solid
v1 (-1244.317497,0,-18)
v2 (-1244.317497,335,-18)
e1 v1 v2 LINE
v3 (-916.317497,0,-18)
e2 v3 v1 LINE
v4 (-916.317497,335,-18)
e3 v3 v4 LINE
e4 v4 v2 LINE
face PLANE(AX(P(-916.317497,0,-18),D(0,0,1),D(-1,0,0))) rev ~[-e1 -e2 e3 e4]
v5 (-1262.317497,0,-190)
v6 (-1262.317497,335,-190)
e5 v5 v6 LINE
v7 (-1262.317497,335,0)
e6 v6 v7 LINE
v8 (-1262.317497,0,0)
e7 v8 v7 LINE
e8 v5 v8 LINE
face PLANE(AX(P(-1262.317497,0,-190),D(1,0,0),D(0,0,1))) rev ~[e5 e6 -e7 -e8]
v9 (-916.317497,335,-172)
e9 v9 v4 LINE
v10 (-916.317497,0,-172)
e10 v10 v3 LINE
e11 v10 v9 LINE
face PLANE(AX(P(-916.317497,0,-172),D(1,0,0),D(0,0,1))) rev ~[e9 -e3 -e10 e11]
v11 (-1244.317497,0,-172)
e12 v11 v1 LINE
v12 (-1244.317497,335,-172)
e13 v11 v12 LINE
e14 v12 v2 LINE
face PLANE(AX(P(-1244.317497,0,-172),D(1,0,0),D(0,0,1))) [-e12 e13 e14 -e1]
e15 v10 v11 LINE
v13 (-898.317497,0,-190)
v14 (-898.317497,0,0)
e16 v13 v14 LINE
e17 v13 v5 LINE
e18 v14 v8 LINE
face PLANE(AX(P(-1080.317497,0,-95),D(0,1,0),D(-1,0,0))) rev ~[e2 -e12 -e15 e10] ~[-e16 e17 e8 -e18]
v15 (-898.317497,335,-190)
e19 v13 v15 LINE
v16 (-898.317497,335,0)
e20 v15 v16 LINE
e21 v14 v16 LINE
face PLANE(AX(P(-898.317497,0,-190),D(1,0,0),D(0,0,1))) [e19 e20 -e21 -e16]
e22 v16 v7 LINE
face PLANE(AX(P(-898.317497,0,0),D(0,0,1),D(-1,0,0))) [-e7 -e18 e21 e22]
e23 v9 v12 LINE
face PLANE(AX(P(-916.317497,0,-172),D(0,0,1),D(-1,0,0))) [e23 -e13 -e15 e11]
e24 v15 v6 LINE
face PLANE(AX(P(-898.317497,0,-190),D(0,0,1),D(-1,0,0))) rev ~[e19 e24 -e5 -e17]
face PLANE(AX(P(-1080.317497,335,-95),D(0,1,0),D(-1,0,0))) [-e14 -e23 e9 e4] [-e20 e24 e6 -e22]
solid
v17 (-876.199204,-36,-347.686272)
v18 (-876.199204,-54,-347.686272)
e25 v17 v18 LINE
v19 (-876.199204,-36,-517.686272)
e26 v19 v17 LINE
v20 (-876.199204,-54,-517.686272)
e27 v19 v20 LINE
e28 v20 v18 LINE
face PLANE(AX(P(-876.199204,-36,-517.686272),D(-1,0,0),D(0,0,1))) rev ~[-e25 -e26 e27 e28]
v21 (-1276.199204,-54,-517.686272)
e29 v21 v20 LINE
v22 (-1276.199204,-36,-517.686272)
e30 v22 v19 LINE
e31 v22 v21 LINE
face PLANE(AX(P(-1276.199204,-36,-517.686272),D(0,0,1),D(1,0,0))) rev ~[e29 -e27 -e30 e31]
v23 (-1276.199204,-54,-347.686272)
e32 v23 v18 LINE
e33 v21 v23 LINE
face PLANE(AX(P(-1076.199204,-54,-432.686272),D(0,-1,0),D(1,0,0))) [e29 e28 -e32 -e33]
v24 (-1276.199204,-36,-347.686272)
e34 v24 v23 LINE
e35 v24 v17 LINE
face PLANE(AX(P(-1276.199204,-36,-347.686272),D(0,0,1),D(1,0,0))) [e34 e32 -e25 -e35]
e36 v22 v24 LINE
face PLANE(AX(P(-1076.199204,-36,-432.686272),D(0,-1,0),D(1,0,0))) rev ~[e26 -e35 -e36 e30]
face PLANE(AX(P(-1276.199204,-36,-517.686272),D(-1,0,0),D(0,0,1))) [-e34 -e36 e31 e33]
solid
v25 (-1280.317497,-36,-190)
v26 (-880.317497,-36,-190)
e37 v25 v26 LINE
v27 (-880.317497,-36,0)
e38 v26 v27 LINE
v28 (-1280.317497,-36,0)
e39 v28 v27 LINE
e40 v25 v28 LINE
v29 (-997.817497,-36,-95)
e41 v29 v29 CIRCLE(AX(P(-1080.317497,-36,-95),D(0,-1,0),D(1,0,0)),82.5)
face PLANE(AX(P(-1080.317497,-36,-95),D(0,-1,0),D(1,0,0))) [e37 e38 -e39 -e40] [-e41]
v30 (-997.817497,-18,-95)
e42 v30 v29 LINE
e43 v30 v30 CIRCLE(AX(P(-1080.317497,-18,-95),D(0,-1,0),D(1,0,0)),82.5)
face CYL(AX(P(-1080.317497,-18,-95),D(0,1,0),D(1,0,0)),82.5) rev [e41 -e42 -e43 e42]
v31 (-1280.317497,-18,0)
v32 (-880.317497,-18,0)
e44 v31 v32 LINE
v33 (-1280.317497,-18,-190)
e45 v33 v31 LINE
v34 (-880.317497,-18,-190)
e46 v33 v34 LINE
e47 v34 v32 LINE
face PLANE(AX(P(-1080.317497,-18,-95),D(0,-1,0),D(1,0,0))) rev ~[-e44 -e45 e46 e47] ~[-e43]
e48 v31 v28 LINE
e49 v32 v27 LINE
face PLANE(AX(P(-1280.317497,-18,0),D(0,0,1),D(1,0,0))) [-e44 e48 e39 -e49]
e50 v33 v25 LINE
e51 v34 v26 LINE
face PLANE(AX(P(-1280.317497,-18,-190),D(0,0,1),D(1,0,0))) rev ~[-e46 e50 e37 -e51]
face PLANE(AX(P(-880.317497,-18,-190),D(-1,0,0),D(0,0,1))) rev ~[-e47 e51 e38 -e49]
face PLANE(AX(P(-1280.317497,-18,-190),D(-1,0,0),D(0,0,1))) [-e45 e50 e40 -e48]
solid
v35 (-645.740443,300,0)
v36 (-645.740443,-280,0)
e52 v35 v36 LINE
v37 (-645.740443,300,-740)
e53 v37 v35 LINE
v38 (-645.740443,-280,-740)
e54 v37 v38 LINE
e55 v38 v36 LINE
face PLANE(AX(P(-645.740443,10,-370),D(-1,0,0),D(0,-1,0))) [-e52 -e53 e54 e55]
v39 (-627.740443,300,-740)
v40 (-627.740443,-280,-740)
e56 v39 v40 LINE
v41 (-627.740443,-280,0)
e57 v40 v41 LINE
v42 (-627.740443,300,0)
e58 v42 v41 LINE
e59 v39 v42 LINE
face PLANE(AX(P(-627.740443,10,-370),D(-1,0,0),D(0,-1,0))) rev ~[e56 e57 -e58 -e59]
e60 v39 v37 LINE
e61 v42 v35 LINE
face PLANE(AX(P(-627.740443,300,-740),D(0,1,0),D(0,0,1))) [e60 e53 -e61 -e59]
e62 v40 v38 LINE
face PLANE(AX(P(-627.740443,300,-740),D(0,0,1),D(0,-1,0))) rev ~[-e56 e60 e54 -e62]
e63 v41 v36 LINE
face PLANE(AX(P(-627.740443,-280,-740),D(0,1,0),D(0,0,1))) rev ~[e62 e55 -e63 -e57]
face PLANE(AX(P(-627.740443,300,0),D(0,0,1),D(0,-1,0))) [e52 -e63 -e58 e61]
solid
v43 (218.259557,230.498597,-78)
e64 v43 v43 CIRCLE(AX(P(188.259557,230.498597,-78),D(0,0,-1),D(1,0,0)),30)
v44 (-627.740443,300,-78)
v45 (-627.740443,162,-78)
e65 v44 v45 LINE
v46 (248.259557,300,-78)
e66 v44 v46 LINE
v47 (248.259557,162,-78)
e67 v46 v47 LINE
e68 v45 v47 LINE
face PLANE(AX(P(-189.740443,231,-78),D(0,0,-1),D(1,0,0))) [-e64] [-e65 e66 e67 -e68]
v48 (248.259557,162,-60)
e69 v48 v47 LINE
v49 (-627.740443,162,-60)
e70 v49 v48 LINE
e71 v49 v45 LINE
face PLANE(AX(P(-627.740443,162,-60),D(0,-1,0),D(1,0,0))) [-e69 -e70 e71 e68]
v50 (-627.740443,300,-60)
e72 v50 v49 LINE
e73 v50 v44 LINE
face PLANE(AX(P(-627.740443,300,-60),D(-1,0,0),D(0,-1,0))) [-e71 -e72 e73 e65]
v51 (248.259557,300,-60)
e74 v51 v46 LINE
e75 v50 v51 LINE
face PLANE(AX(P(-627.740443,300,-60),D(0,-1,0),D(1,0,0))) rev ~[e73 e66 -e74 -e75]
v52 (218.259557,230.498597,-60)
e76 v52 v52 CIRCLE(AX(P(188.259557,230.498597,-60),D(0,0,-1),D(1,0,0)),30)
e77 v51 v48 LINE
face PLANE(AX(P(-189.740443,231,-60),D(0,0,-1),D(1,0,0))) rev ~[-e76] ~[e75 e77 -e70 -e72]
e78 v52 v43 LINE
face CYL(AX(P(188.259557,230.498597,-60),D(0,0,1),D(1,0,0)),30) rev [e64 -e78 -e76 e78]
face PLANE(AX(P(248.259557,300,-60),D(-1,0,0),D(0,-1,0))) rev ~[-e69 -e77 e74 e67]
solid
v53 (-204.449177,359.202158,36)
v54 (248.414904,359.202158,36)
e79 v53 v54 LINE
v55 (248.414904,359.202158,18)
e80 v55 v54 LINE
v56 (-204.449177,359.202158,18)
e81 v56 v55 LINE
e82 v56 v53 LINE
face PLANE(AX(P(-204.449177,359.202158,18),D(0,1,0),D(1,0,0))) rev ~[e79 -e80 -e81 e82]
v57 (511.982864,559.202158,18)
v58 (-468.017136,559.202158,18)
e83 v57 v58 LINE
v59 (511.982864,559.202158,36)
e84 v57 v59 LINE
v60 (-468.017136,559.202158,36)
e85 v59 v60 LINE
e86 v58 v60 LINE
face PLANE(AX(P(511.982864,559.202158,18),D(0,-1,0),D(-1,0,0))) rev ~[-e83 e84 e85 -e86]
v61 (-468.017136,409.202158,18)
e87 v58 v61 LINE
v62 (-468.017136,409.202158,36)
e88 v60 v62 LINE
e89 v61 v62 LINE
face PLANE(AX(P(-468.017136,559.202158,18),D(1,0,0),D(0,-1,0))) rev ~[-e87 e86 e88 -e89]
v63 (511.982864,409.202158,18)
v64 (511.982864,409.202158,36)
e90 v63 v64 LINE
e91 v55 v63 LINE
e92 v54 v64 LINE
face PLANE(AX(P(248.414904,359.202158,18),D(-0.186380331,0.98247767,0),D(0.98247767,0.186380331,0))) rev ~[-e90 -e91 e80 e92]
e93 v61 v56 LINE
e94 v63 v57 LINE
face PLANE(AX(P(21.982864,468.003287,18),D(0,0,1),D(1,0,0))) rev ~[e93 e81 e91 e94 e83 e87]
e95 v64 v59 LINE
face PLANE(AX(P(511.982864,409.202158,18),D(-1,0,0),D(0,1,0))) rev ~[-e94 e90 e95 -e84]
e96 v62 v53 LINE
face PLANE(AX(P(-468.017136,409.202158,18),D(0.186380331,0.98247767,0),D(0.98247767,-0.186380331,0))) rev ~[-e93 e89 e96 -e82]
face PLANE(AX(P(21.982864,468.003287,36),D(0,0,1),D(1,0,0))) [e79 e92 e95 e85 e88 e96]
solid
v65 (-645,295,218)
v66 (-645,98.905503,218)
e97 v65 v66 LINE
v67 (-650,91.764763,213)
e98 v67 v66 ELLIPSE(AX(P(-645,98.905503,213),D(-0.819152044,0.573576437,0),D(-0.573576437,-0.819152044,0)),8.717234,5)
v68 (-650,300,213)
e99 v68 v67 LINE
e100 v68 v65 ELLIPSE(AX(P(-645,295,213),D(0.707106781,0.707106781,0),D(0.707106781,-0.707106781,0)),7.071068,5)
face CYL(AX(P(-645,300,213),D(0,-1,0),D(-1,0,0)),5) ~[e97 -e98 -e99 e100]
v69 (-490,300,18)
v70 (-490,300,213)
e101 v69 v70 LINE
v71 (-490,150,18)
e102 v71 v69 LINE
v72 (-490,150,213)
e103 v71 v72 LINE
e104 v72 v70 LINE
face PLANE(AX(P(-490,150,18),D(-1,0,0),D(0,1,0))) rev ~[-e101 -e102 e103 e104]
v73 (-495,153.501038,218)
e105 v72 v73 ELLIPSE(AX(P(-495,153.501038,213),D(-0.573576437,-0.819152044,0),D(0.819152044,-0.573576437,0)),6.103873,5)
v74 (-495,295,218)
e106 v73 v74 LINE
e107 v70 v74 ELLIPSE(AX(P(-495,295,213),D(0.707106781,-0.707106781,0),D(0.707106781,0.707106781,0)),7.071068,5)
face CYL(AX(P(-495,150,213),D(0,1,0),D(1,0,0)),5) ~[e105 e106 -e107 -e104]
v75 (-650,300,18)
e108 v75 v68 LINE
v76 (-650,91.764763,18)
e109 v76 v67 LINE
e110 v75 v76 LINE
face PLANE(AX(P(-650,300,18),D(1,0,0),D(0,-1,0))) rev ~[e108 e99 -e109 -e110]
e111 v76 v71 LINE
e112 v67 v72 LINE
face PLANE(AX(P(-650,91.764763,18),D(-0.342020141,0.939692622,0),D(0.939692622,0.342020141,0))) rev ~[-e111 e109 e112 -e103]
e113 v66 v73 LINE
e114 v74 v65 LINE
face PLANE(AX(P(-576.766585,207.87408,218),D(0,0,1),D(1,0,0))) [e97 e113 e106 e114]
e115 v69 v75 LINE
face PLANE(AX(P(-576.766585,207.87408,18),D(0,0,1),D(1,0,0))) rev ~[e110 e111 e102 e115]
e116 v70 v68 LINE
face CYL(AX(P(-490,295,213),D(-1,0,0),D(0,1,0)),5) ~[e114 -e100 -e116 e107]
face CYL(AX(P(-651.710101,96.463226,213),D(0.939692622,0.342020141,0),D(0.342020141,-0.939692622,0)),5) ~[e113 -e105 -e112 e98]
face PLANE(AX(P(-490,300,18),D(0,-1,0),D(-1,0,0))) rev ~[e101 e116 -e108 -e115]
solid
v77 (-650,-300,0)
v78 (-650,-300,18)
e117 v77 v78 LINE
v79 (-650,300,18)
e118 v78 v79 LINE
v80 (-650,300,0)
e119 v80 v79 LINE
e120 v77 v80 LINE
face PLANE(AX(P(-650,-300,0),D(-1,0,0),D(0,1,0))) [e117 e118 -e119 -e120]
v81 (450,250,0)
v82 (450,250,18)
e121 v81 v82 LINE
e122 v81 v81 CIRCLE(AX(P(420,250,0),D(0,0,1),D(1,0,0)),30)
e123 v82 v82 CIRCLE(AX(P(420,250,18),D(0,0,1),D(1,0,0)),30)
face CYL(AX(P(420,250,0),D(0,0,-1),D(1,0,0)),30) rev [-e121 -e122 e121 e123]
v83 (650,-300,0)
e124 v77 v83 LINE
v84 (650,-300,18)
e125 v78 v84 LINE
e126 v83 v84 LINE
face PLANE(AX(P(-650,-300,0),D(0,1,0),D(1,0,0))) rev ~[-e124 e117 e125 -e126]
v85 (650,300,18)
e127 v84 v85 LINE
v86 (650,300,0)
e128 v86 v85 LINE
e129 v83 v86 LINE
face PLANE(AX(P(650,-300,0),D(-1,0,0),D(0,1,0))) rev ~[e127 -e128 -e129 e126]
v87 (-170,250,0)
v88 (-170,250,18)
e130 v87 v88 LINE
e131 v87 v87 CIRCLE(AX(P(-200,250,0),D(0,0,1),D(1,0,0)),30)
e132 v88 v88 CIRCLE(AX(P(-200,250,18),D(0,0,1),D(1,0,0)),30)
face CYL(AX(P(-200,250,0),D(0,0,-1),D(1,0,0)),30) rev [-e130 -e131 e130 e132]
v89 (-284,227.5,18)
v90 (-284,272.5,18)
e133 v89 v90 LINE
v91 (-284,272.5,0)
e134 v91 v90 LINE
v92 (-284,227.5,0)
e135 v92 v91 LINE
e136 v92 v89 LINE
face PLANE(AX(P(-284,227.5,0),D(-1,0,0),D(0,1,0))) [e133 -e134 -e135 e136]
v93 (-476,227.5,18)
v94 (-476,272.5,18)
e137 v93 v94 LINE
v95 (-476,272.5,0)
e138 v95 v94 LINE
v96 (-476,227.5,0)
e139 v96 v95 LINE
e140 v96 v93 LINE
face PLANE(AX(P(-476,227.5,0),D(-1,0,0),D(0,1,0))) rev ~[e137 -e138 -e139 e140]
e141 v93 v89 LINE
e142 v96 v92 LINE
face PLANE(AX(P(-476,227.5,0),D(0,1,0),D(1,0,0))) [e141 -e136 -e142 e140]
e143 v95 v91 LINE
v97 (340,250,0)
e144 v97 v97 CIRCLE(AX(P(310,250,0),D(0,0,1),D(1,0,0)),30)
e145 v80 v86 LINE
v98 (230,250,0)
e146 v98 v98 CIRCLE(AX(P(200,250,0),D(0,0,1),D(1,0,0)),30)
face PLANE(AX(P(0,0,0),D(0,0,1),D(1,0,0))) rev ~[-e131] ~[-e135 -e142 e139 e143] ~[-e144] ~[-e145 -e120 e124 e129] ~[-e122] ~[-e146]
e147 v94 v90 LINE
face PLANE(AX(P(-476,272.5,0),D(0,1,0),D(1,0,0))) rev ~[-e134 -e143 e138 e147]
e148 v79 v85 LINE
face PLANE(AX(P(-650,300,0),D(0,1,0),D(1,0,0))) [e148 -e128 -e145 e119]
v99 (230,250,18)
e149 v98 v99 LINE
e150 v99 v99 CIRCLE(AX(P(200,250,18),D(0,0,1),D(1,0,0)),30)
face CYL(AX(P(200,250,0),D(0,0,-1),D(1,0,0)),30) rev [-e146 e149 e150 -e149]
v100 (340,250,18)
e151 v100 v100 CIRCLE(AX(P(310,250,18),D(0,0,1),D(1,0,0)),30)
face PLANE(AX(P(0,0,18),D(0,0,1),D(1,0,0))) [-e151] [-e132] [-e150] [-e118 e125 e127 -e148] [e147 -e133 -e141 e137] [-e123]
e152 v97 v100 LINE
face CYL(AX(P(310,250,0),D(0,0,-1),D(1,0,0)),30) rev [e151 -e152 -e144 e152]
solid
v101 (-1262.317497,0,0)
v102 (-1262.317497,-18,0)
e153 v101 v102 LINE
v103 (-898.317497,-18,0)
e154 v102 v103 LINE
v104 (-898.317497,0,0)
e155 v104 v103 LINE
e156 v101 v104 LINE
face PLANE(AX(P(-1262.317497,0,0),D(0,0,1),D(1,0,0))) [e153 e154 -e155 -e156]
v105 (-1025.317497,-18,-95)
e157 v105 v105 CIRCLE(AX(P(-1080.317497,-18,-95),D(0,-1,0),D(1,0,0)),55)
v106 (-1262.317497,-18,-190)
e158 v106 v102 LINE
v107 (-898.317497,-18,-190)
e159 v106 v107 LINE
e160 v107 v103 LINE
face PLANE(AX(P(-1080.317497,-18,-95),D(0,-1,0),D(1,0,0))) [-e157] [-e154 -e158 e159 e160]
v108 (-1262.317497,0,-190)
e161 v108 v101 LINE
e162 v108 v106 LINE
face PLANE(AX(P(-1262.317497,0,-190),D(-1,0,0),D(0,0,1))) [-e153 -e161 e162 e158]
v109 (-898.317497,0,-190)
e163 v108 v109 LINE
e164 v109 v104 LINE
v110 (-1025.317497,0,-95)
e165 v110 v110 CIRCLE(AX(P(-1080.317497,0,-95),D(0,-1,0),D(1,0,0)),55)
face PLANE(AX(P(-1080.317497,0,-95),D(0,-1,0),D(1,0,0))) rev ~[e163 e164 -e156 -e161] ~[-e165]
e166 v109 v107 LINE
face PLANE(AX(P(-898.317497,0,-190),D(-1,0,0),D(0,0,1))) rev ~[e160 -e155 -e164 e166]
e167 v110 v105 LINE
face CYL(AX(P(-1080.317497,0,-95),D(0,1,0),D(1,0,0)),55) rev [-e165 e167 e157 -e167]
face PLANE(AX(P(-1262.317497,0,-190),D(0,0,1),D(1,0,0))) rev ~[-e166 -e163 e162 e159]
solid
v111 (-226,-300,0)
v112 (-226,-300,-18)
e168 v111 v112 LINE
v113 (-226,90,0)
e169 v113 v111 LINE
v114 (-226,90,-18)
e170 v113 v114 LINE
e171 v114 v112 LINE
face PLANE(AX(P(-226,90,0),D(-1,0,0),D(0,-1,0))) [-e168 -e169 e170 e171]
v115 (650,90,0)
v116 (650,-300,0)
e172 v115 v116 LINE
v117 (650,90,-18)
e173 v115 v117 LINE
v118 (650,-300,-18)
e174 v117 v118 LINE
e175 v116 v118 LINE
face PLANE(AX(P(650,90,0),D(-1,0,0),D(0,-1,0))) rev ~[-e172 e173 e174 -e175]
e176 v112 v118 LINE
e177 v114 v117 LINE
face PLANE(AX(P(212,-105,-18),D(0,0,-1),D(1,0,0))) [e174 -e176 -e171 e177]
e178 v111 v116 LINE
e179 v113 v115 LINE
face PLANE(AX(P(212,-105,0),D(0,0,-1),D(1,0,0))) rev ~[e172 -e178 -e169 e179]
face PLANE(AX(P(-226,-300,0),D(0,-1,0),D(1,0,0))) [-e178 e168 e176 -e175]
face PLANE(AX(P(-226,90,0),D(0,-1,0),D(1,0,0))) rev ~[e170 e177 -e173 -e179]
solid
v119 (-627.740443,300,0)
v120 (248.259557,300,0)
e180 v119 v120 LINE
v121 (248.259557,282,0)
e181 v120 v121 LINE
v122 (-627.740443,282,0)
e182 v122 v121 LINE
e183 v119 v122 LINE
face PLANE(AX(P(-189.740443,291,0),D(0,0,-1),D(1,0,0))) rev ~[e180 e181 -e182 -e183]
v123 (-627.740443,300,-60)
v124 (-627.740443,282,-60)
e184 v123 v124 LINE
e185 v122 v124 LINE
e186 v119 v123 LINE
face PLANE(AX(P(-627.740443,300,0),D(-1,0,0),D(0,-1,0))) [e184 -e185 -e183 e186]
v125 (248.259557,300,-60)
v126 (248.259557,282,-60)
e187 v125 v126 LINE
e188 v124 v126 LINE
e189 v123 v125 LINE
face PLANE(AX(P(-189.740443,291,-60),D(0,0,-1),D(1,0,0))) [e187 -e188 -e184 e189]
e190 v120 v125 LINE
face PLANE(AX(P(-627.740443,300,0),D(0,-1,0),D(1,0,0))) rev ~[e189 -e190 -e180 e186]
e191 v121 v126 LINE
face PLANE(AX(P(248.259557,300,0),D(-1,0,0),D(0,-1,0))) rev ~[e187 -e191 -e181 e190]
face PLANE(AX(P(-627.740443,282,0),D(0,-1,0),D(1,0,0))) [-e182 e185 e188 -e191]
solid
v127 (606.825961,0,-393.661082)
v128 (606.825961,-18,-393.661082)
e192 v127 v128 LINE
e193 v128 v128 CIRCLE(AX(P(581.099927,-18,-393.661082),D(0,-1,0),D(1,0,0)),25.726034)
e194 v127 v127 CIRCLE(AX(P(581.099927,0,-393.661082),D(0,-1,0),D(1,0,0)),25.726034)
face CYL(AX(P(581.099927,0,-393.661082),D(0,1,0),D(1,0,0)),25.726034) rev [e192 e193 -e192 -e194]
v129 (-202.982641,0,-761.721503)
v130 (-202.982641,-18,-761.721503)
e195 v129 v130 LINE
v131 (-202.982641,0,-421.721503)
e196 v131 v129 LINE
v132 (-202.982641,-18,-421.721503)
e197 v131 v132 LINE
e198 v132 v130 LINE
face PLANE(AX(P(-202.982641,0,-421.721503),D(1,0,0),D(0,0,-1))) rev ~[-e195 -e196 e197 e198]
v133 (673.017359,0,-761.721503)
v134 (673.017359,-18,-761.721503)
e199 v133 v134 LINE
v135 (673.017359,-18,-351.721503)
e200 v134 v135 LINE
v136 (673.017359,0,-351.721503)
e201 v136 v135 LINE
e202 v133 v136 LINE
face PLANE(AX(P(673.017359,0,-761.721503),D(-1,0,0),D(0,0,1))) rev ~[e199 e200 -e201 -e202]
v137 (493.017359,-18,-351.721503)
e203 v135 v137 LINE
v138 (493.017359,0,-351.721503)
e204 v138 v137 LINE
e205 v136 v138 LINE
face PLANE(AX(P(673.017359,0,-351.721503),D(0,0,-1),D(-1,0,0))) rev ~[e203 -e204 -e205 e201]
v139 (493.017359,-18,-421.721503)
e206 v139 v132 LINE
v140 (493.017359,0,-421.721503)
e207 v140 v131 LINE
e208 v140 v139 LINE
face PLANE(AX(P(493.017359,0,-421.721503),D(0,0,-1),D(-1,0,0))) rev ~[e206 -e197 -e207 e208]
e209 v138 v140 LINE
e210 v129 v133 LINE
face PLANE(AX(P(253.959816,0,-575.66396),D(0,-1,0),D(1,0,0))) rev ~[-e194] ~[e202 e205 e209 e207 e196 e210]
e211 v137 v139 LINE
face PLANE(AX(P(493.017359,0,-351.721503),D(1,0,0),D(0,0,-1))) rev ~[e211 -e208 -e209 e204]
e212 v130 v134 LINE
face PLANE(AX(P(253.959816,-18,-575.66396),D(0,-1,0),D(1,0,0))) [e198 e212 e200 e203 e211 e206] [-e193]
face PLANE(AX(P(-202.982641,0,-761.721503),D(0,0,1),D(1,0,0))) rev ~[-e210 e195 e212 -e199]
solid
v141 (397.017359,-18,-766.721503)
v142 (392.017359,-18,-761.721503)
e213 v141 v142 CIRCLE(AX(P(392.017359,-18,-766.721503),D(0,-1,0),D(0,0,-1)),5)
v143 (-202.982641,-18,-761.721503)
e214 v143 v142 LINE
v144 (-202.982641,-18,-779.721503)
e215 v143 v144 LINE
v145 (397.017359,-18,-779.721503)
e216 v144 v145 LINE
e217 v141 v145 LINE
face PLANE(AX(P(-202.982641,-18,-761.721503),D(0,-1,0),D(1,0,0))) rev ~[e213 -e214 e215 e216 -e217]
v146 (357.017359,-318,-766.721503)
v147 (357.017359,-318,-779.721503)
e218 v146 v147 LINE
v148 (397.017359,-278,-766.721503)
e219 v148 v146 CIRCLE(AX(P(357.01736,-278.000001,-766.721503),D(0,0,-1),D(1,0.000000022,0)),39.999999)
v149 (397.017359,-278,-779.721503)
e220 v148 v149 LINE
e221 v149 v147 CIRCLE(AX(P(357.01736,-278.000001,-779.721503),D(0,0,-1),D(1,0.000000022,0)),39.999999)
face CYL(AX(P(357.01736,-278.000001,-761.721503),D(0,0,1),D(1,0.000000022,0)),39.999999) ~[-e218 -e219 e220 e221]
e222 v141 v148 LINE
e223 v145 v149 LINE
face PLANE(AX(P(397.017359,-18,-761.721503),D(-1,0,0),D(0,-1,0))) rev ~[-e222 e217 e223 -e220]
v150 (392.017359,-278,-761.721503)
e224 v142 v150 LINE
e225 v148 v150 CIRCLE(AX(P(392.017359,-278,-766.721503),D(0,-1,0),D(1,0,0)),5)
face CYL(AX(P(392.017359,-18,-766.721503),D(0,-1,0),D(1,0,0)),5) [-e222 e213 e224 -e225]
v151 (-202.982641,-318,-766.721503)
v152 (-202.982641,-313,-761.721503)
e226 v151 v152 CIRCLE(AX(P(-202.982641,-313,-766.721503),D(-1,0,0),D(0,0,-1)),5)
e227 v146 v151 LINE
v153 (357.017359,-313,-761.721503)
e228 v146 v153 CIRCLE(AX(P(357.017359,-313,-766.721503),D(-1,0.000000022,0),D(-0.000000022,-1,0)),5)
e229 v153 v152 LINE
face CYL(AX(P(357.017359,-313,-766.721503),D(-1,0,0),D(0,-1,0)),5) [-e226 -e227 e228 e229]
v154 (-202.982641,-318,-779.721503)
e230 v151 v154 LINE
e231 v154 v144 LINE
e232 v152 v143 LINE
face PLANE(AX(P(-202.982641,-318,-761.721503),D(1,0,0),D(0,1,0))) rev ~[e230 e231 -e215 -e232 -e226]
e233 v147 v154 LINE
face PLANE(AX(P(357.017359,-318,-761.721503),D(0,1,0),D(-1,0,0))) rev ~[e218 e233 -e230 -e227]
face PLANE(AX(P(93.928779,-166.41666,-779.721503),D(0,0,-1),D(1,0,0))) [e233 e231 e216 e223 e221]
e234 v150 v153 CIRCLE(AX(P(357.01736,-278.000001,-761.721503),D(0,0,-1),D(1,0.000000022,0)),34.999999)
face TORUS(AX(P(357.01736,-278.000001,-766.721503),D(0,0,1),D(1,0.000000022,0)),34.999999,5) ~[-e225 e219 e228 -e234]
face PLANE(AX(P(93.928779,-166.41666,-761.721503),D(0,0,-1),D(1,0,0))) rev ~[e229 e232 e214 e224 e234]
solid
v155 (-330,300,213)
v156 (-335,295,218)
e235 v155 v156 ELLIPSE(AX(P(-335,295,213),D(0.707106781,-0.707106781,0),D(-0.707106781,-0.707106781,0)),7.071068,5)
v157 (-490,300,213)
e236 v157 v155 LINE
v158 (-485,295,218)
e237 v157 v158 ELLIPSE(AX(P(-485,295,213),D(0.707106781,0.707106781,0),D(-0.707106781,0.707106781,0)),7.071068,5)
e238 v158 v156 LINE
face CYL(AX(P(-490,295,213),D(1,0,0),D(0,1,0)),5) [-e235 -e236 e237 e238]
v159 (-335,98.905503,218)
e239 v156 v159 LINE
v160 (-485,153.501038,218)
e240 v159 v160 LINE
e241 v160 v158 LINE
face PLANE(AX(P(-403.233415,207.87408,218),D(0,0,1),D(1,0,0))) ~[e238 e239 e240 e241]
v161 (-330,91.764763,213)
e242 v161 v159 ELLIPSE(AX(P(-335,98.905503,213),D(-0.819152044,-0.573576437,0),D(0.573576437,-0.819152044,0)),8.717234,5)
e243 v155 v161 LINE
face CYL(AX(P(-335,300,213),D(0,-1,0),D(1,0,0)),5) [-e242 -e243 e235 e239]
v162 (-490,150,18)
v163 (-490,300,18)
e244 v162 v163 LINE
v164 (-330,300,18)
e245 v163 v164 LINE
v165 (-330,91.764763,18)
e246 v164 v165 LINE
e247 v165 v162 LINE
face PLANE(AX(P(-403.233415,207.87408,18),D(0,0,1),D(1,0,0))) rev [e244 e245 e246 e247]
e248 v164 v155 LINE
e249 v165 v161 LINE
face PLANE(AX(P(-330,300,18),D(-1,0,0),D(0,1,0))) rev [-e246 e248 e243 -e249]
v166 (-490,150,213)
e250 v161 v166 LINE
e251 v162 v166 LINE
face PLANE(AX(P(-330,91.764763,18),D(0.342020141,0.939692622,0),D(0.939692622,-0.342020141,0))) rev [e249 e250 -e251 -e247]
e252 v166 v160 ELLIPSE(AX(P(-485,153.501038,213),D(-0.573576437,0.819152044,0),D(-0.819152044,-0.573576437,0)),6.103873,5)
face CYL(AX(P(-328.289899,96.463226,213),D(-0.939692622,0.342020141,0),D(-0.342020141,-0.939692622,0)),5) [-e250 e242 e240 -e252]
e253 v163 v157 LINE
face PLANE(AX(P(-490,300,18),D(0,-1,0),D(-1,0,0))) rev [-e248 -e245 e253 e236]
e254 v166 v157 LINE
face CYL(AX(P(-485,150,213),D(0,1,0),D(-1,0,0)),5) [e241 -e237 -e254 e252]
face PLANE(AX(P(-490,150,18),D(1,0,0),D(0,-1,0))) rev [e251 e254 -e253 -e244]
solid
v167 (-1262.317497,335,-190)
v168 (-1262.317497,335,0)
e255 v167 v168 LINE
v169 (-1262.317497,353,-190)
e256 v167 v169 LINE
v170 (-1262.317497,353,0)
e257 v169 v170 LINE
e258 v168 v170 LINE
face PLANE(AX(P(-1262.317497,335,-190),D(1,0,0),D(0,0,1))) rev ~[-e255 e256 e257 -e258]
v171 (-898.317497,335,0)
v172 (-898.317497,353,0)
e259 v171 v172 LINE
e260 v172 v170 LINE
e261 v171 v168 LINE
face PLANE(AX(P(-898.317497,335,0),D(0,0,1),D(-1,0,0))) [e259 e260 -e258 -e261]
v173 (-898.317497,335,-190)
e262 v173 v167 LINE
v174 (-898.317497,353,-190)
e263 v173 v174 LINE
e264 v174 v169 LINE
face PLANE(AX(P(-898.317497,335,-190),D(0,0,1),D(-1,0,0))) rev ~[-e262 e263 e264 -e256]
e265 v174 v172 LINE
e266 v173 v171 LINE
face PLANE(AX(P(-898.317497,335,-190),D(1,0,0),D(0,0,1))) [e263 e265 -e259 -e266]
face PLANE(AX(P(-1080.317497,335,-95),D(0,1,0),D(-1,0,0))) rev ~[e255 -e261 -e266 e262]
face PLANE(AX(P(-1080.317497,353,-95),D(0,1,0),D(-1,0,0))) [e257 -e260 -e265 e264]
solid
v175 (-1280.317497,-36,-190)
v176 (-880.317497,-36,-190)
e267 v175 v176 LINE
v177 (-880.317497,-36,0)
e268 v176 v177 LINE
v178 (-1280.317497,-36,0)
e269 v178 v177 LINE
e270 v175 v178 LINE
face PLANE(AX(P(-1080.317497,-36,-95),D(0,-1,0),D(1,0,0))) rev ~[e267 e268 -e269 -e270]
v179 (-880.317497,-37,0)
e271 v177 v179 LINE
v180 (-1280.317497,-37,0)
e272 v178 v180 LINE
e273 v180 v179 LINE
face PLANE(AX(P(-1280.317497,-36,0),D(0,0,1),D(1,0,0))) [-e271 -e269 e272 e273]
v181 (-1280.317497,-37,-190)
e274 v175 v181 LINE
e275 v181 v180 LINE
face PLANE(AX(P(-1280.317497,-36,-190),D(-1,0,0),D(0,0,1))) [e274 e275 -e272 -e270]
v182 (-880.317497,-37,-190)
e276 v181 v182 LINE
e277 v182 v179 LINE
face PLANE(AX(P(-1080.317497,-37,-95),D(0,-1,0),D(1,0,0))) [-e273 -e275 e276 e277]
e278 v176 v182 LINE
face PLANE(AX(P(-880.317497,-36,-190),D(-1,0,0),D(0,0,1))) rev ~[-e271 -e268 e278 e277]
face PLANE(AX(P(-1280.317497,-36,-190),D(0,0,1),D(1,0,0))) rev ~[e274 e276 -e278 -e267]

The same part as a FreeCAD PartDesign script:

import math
import FreeCAD as App
import Part
import Sketcher
Q = App.Units.Quantity


def edges_at(feature, points):
    """Names of the edges that pass closest to the given points."""
    edges = feature.Shape.Edges
    near = lambda p: min(range(len(edges)), key=lambda i: edges[i].distToShape(Part.Vertex(*p))[0])
    return sorted({f"Edge{near(p) + 1}" for p in points})


def add_polygon(sketch, points):
    """Adds a closed chain of lines whose ends are joined by coincident constraints."""
    first, n = sketch.GeometryCount, len(points)
    for a, b in zip(points, points[1:] + points[:1]):
        sketch.addGeometry(Part.LineSegment(App.Vector(*a, 0), App.Vector(*b, 0)), False)
    for i in range(n):
        sketch.addConstraint(Sketcher.Constraint("Coincident", first + i, 2, first + (i + 1) % n, 1))

doc = App.newDocument("Part")
params = doc.addObject("Spreadsheet::Sheet", "Params")
for row, (alias, value) in enumerate([
    ("sketch1_diameter", "60 mm"),
    ("sketch1_width", "1300 mm"),
    ("sketch1_width2", "192 mm"),
    ("sketch1_height", "600 mm"),
    ("sketch1_height2", "45 mm"),
    ("pad1_length", "18 mm"),
    ("sketch2_width", "876 mm"),
    ("sketch2_height", "18 mm"),
    ("pad2_length", "60 mm"),
    ("sketch3_diameter", "60 mm"),
    ("sketch3_width", "876 mm"),
    ("sketch3_height", "138 mm"),
    ("pad3_length", "18 mm"),
    ("sketch4_width", "580 mm"),
    ("sketch4_height", "740 mm"),
    ("pad4_length", "18 mm"),
    ("sketch5_width", "160 mm"),
    ("sketch5_height", "150 mm"),
    ("pad5_length", "200 mm"),
    ("fillet_radius", "5 mm"),
    ("sketch6_diameter", "110 mm"),
    ("sketch6_width", "364 mm"),
    ("sketch6_height", "190 mm"),
    ("pad6_length", "18 mm"),
    ("sketch7_width", "364 mm"),
    ("sketch7_width2", "328 mm"),
    ("sketch7_height", "190 mm"),
    ("sketch7_height2", "154 mm"),
    ("pad7_length", "335 mm"),
    ("sketch8_diameter", "165 mm"),
    ("sketch8_width", "400 mm"),
    ("sketch8_height", "190 mm"),
    ("pad8_length", "18 mm"),
    ("sketch9_width", "364 mm"),
    ("sketch9_height", "190 mm"),
    ("pad9_length", "18 mm"),
    ("sketch10_width", "876 mm"),
    ("sketch10_height", "390 mm"),
    ("pad10_length", "18 mm"),
    ("sketch11_width", "876 mm"),
    ("sketch11_width2", "180 mm"),
    ("sketch11_height", "410 mm"),
    ("sketch11_height2", "70 mm"),
    ("pad11_length", "18 mm"),
    ("sketch12_radius", "39.999999 mm"),
    ("sketch12_width", "600 mm"),
    ("sketch12_height", "300 mm"),
    ("pad12_length", "18 mm"),
    ("fillet2_radius", "5 mm"),
    ("sketch13_width", "400 mm"),
    ("sketch13_height", "170 mm"),
    ("pad13_length", "18 mm"),
    ("sketch14_width", "400 mm"),
    ("sketch14_height", "190 mm"),
    ("pad14_length", "1 mm"),
    ("sketch15_width", "980 mm"),
    ("sketch15_height", "150 mm"),
    ("pad15_length", "18 mm"),
], start=1):
    params.set(f"A{row}", alias)
    params.set(f"B{row}", "=" + value)
    params.setAlias(f"B{row}", alias)

body = doc.addObject("PartDesign::Body", "Body")

# Sketch on XY plane
sketch1 = doc.addObject("Sketcher::SketchObject", "Sketch")
body.addObject(sketch1)
sketch1.AttachmentSupport = (doc.XY_Plane, [""])
sketch1.MapMode = "FlatFace"
add_polygon(sketch1, [(-650, 300), (-650, -300), (650, -300), (650, 300)])  # lines 0-3
add_polygon(sketch1, [(-284, 228), (-476, 228), (-476, 272), (-284, 272)])  # lines 4-7
sketch1.addGeometry(Part.Circle(App.Vector(-200, 250, 0), App.Vector(0, 0, 1), 30), False)  # 8
sketch1.addGeometry(Part.Circle(App.Vector(200, 250, 0), App.Vector(0, 0, 1), 30), False)  # 9
sketch1.addGeometry(Part.Circle(App.Vector(310, 250, 0), App.Vector(0, 0, 1), 30), False)  # 10
sketch1.addGeometry(Part.Circle(App.Vector(420, 250, 0), App.Vector(0, 0, 1), 30), False)  # 11
sketch1.addConstraint([
    Sketcher.Constraint("Vertical", 0),
    Sketcher.Constraint("Horizontal", 1),
    Sketcher.Constraint("Vertical", 2),
    Sketcher.Constraint("Horizontal", 3),
    Sketcher.Constraint("Horizontal", 4),
    Sketcher.Constraint("Vertical", 5),
    Sketcher.Constraint("Horizontal", 6),
    Sketcher.Constraint("Vertical", 7),
    Sketcher.Constraint("Equal", 8, 9),
    Sketcher.Constraint("Equal", 9, 10),
    Sketcher.Constraint("Equal", 10, 11),
    Sketcher.Constraint("Symmetric", 0, 2, 2, 2, -1, 1),
    Sketcher.Constraint("Symmetric", 8, 3, 9, 3, -2),
    Sketcher.Constraint("Horizontal", 9, 3, 10, 3),
    Sketcher.Constraint("Horizontal", 10, 3, 11, 3),
    Sketcher.Constraint("Diameter", 8, Q("60 mm")),
    Sketcher.Constraint("DistanceX", 1, 1, 1, 2, Q("1300 mm")),
    Sketcher.Constraint("DistanceX", 4, 2, 4, 1, Q("192 mm")),
    Sketcher.Constraint("DistanceY", 0, 2, 0, 1, Q("600 mm")),
    Sketcher.Constraint("DistanceY", 5, 1, 5, 2, Q("45 mm")),
    Sketcher.Constraint("DistanceX", 8, 3, -1, 1, Q("200 mm")),
    Sketcher.Constraint("DistanceY", -1, 1, 8, 3, Q("250 mm")),
    Sketcher.Constraint("DistanceX", -1, 1, 10, 3, Q("310 mm")),
    Sketcher.Constraint("DistanceX", -1, 1, 11, 3, Q("420 mm")),
    Sketcher.Constraint("DistanceX", 4, 2, -1, 1, Q("476 mm")),
    Sketcher.Constraint("DistanceY", -1, 1, 4, 2, Q("227.5 mm")),
])
sketch1.setExpression("Constraints[23]", "Params.sketch1_diameter")
sketch1.setExpression("Constraints[24]", "Params.sketch1_width")
sketch1.setExpression("Constraints[25]", "Params.sketch1_width2")
sketch1.setExpression("Constraints[26]", "Params.sketch1_height")
sketch1.setExpression("Constraints[27]", "Params.sketch1_height2")
pad1 = doc.addObject("PartDesign::Pad", "Pad")
body.addObject(pad1)
pad1.Profile = sketch1
pad1.setExpression("Length", "Params.pad1_length")
body2 = doc.addObject("PartDesign::Body", "Body001")

# Sketch on XY plane
sketch2 = doc.addObject("Sketcher::SketchObject", "Sketch001")
body2.addObject(sketch2)
sketch2.AttachmentSupport = (doc.getObject("XY_Plane001"), [""])
sketch2.MapMode = "FlatFace"
add_polygon(sketch2, [(-628, 282), (-628, 300), (248, 300), (248, 282)])  # lines 0-3
sketch2.addConstraint([
    Sketcher.Constraint("Vertical", 0),
    Sketcher.Constraint("Horizontal", 1),
    Sketcher.Constraint("Vertical", 2),
    Sketcher.Constraint("Horizontal", 3),
    Sketcher.Constraint("DistanceX", 1, 1, 1, 2, Q("876 mm")),
    Sketcher.Constraint("DistanceY", 0, 1, 0, 2, Q("18 mm")),
    Sketcher.Constraint("DistanceY", -1, 1, 0, 2, Q("300 mm")),
    Sketcher.Constraint("DistanceX", 0, 2, -1, 1, Q("627.740443 mm")),
])
sketch2.setExpression("Constraints[8]", "Params.sketch2_width")
sketch2.setExpression("Constraints[9]", "Params.sketch2_height")
pad2 = doc.addObject("PartDesign::Pad", "Pad001")
body2.addObject(pad2)
pad2.Profile = sketch2
pad2.setExpression("Length", "Params.pad2_length")
pad2.Reversed = True
body3 = doc.addObject("PartDesign::Body", "Body002")

# Sketch on XY plane
sketch3 = doc.addObject("Sketcher::SketchObject", "Sketch002")
body3.addObject(sketch3)
sketch3.AttachmentSupport = (doc.getObject("XY_Plane002"), [""])
sketch3.MapMode = "FlatFace"
sketch3.AttachmentOffset = App.Placement(App.Vector(0, 0, -60), App.Rotation())
add_polygon(sketch3, [(-628, 162), (-628, 300), (248, 300), (248, 162)])  # lines 0-3
sketch3.addGeometry(Part.Circle(App.Vector(188, 230, 0), App.Vector(0, 0, 1), 30), False)  # 4
sketch3.addConstraint([
    Sketcher.Constraint("Vertical", 0),
    Sketcher.Constraint("Horizontal", 1),
    Sketcher.Constraint("Vertical", 2),
    Sketcher.Constraint("Horizontal", 3),
    Sketcher.Constraint("Diameter", 4, Q("60 mm")),
    Sketcher.Constraint("DistanceX", 1, 1, 1, 2, Q("876 mm")),
    Sketcher.Constraint("DistanceY", 0, 1, 0, 2, Q("138 mm")),
    Sketcher.Constraint("DistanceY", -1, 1, 0, 2, Q("300 mm")),
    Sketcher.Constraint("DistanceX", 0, 2, 4, 3, Q("816 mm")),
    Sketcher.Constraint("DistanceX", -1, 1, 4, 3, Q("188.259557 mm")),
    Sketcher.Constraint("DistanceY", -1, 1, 4, 3, Q("230.498597 mm")),
])
sketch3.setExpression("Constraints[8]", "Params.sketch3_diameter")
sketch3.setExpression("Constraints[9]", "Params.sketch3_width")
sketch3.setExpression("Constraints[10]", "Params.sketch3_height")
pad3 = doc.addObject("PartDesign::Pad", "Pad002")
body3.addObject(pad3)
pad3.Profile = sketch3
pad3.setExpression("Length", "Params.pad3_length")
pad3.Reversed = True
body4 = doc.addObject("PartDesign::Body", "Body003")

# Sketch on YZ plane
sketch4 = doc.addObject("Sketcher::SketchObject", "Sketch003")
body4.addObject(sketch4)
sketch4.AttachmentSupport = (doc.getObject("YZ_Plane003"), [""])
sketch4.MapMode = "FlatFace"
sketch4.AttachmentOffset = App.Placement(App.Vector(0, 0, -627.740443), App.Rotation())
add_polygon(sketch4, [(300, 0), (300, -740), (-280, -740), (-280, 0)])  # lines 0-3
sketch4.addConstraint([
    Sketcher.Constraint("Vertical", 0),
    Sketcher.Constraint("Horizontal", 1),
    Sketcher.Constraint("Vertical", 2),
    Sketcher.Constraint("Horizontal", 3),
    Sketcher.Constraint("PointOnObject", 2, 2, -1),
    Sketcher.Constraint("DistanceX", 1, 2, 1, 1, Q("580 mm")),
    Sketcher.Constraint("DistanceY", 0, 2, 0, 1, Q("740 mm")),
    Sketcher.Constraint("DistanceX", -1, 1, 0, 2, Q("300 mm")),
])
sketch4.setExpression("Constraints[9]", "Params.sketch4_width")
sketch4.setExpression("Constraints[10]", "Params.sketch4_height")
pad4 = doc.addObject("PartDesign::Pad", "Pad003")
body4.addObject(pad4)
pad4.Profile = sketch4
pad4.setExpression("Length", "Params.pad4_length")
pad4.Reversed = True
body5 = doc.addObject("PartDesign::Body", "Body004")

# Sketch on XY plane
sketch5 = doc.addObject("Sketcher::SketchObject", "Sketch004")
body5.addObject(sketch5)
sketch5.AttachmentSupport = (doc.getObject("XY_Plane004"), [""])
sketch5.MapMode = "FlatFace"
sketch5.AttachmentOffset = App.Placement(App.Vector(0, 0, 18), App.Rotation())
add_polygon(sketch5, [(-490, 300), (-650, 300), (-650, 92), (-490, 150)])  # lines 0-3
sketch5.addConstraint([
    Sketcher.Constraint("Horizontal", 0),
    Sketcher.Constraint("Vertical", 1),
    Sketcher.Constraint("Vertical", 3),
    Sketcher.Constraint("DistanceX", 0, 2, 0, 1, Q("160 mm")),
    Sketcher.Constraint("DistanceY", 3, 1, 3, 2, Q("150 mm")),
    Sketcher.Constraint("Angle", 2, Q("20 deg")),
    Sketcher.Constraint("DistanceX", 0, 2, -1, 1, Q("650 mm")),
    Sketcher.Constraint("DistanceY", -1, 1, 0, 2, Q("300 mm")),
])
sketch5.setExpression("Constraints[7]", "Params.sketch5_width")
sketch5.setExpression("Constraints[8]", "Params.sketch5_height")
pad5 = doc.addObject("PartDesign::Pad", "Pad004")
body5.addObject(pad5)
pad5.Profile = sketch5
pad5.setExpression("Length", "Params.pad5_length")
doc.recompute()

fillet = doc.addObject("PartDesign::Fillet", "Fillet")
body5.addObject(fillet)
fillet.Base = (pad5, edges_at(pad5, [
    (-650, 195.882, 218),
    (-570, 120.882, 218),
    (-490, 225, 218),
    (-570, 300, 218),
]))
fillet.setExpression("Radius", "Params.fillet_radius")
body6 = doc.addObject("PartDesign::Body", "Body005")

# Sketch on XZ plane
sketch6 = doc.addObject("Sketcher::SketchObject", "Sketch005")
body6.addObject(sketch6)
sketch6.AttachmentSupport = (doc.getObject("XZ_Plane005"), [""])
sketch6.MapMode = "FlatFace"
add_polygon(sketch6, [(-1262, 0), (-1262, -190), (-898, -190), (-898, 0)])  # lines 0-3
sketch6.addGeometry(Part.Circle(App.Vector(-1080, -95, 0), App.Vector(0, 0, 1), 55), False)  # 4
sketch6.addConstraint([
    Sketcher.Constraint("Vertical", 0),
    Sketcher.Constraint("Horizontal", 1),
    Sketcher.Constraint("Vertical", 2),
    Sketcher.Constraint("Horizontal", 3),
    Sketcher.Constraint("PointOnObject", 2, 2, -1),
    Sketcher.Constraint("Diameter", 4, Q("110 mm")),
    Sketcher.Constraint("DistanceX", 1, 1, 1, 2, Q("364 mm")),
    Sketcher.Constraint("DistanceY", 0, 2, 0, 1, Q("190 mm")),
    Sketcher.Constraint("DistanceY", 4, 3, -1, 1, Q("95 mm")),
    Sketcher.Constraint("DistanceX", 0, 2, 4, 3, Q("182 mm")),
    Sketcher.Constraint("DistanceX", 4, 3, -1, 1, Q("1080.317497 mm")),
])
sketch6.setExpression("Constraints[9]", "Params.sketch6_diameter")
sketch6.setExpression("Constraints[10]", "Params.sketch6_width")
sketch6.setExpression("Constraints[11]", "Params.sketch6_height")
pad6 = doc.addObject("PartDesign::Pad", "Pad005")
body6.addObject(pad6)
pad6.Profile = sketch6
pad6.setExpression("Length", "Params.pad6_length")
body7 = doc.addObject("PartDesign::Body", "Body006")

# Sketch on XZ plane
sketch7 = doc.addObject("Sketcher::SketchObject", "Sketch006")
body7.addObject(sketch7)
sketch7.AttachmentSupport = (doc.getObject("XZ_Plane006"), [""])
sketch7.MapMode = "FlatFace"
add_polygon(sketch7, [(-898, 0), (-898, -190), (-1262, -190), (-1262, 0)])  # lines 0-3
add_polygon(sketch7, [(-1244, -172), (-916, -172), (-916, -18), (-1244, -18)])  # lines 4-7
sketch7.addConstraint([
    Sketcher.Constraint("Vertical", 0),
    Sketcher.Constraint("Horizontal", 1),
    Sketcher.Constraint("Vertical", 2),
    Sketcher.Constraint("Horizontal", 3),
    Sketcher.Constraint("Horizontal", 4),
    Sketcher.Constraint("Vertical", 5),
    Sketcher.Constraint("Horizontal", 6),
    Sketcher.Constraint("Vertical", 7),
    Sketcher.Constraint("PointOnObject", 2, 2, -1),
    Sketcher.Constraint("DistanceX", 1, 2, 1, 1, Q("364 mm")),
    Sketcher.Constraint("DistanceX", 4, 1, 4, 2, Q("328 mm")),
    Sketcher.Constraint("DistanceY", 0, 2, 0, 1, Q("190 mm")),
    Sketcher.Constraint("DistanceY", 5, 1, 5, 2, Q("154 mm")),
    Sketcher.Constraint("DistanceY", 4, 2, -1, 1, Q("172 mm")),
    Sketcher.Constraint("DistanceX", 4, 2, 0, 2, Q("18 mm")),
    Sketcher.Constraint("DistanceX", 0, 2, -1, 1, Q("898.317497 mm")),
])
sketch7.setExpression("Constraints[17]", "Params.sketch7_width")
sketch7.setExpression("Constraints[18]", "Params.sketch7_width2")
sketch7.setExpression("Constraints[19]", "Params.sketch7_height")
sketch7.setExpression("Constraints[20]", "Params.sketch7_height2")
pad7 = doc.addObject("PartDesign::Pad", "Pad006")
body7.addObject(pad7)
pad7.Profile = sketch7
pad7.setExpression("Length", "Params.pad7_length")
pad7.Reversed = True
body8 = doc.addObject("PartDesign::Body", "Body007")

# Sketch on XZ plane
sketch8 = doc.addObject("Sketcher::SketchObject", "Sketch007")
body8.addObject(sketch8)
sketch8.AttachmentSupport = (doc.getObject("XZ_Plane007"), [""])
sketch8.MapMode = "FlatFace"
sketch8.AttachmentOffset = App.Placement(App.Vector(0, 0, 18), App.Rotation())
add_polygon(sketch8, [(-1280, 0), (-1280, -190), (-880, -190), (-880, 0)])  # lines 0-3
sketch8.addGeometry(Part.Circle(App.Vector(-1080, -95, 0), App.Vector(0, 0, 1), 82), False)  # 4
sketch8.addConstraint([
    Sketcher.Constraint("Vertical", 0),
    Sketcher.Constraint("Horizontal", 1),
    Sketcher.Constraint("Vertical", 2),
    Sketcher.Constraint("Horizontal", 3),
    Sketcher.Constraint("PointOnObject", 2, 2, -1),
    Sketcher.Constraint("Diameter", 4, Q("165 mm")),
    Sketcher.Constraint("DistanceX", 1, 1, 1, 2, Q("400 mm")),
    Sketcher.Constraint("DistanceY", 0, 2, 0, 1, Q("190 mm")),
    Sketcher.Constraint("DistanceY", 4, 3, -1, 1, Q("95 mm")),
    Sketcher.Constraint("DistanceX", 0, 2, 4, 3, Q("200 mm")),
    Sketcher.Constraint("DistanceX", 4, 3, -1, 1, Q("1080.317497 mm")),
])
sketch8.setExpression("Constraints[9]", "Params.sketch8_diameter")
sketch8.setExpression("Constraints[10]", "Params.sketch8_width")
sketch8.setExpression("Constraints[11]", "Params.sketch8_height")
pad8 = doc.addObject("PartDesign::Pad", "Pad007")
body8.addObject(pad8)
pad8.Profile = sketch8
pad8.setExpression("Length", "Params.pad8_length")
body9 = doc.addObject("PartDesign::Body", "Body008")

# Sketch on XZ plane
sketch9 = doc.addObject("Sketcher::SketchObject", "Sketch008")
body9.addObject(sketch9)
sketch9.AttachmentSupport = (doc.getObject("XZ_Plane008"), [""])
sketch9.MapMode = "FlatFace"
sketch9.AttachmentOffset = App.Placement(App.Vector(0, 0, -335), App.Rotation())
add_polygon(sketch9, [(-898, 0), (-898, -190), (-1262, -190), (-1262, 0)])  # lines 0-3
sketch9.addConstraint([
    Sketcher.Constraint("Vertical", 0),
    Sketcher.Constraint("Horizontal", 1),
    Sketcher.Constraint("Vertical", 2),
    Sketcher.Constraint("Horizontal", 3),
    Sketcher.Constraint("PointOnObject", 2, 2, -1),
    Sketcher.Constraint("DistanceX", 1, 2, 1, 1, Q("364 mm")),
    Sketcher.Constraint("DistanceY", 0, 2, 0, 1, Q("190 mm")),
    Sketcher.Constraint("DistanceX", 0, 2, -1, 1, Q("898.317497 mm")),
])
sketch9.setExpression("Constraints[9]", "Params.sketch9_width")
sketch9.setExpression("Constraints[10]", "Params.sketch9_height")
pad9 = doc.addObject("PartDesign::Pad", "Pad008")
body9.addObject(pad9)
pad9.Profile = sketch9
pad9.setExpression("Length", "Params.pad9_length")
pad9.Reversed = True
body10 = doc.addObject("PartDesign::Body", "Body009")

# Sketch on XY plane
sketch10 = doc.addObject("Sketcher::SketchObject", "Sketch009")
body10.addObject(sketch10)
sketch10.AttachmentSupport = (doc.getObject("XY_Plane009"), [""])
sketch10.MapMode = "FlatFace"
add_polygon(sketch10, [(-226, -300), (-226, 90), (650, 90), (650, -300)])  # lines 0-3
sketch10.addConstraint([
    Sketcher.Constraint("Vertical", 0),
    Sketcher.Constraint("Horizontal", 1),
    Sketcher.Constraint("Vertical", 2),
    Sketcher.Constraint("Horizontal", 3),
    Sketcher.Constraint("DistanceX", 1, 1, 1, 2, Q("876 mm")),
    Sketcher.Constraint("DistanceY", 0, 1, 0, 2, Q("390 mm")),
    Sketcher.Constraint("DistanceX", 0, 2, -1, 1, Q("226 mm")),
    Sketcher.Constraint("DistanceY", -1, 1, 0, 2, Q("90 mm")),
])
sketch10.setExpression("Constraints[8]", "Params.sketch10_width")
sketch10.setExpression("Constraints[9]", "Params.sketch10_height")
pad10 = doc.addObject("PartDesign::Pad", "Pad009")
body10.addObject(pad10)
pad10.Profile = sketch10
pad10.setExpression("Length", "Params.pad10_length")
pad10.Reversed = True
body11 = doc.addObject("PartDesign::Body", "Body010")

# Sketch on XZ plane
sketch11 = doc.addObject("Sketcher::SketchObject", "Sketch010")
body11.addObject(sketch11)
sketch11.AttachmentSupport = (doc.getObject("XZ_Plane010"), [""])
sketch11.MapMode = "FlatFace"
add_polygon(sketch11, [(-203, -762), (673, -762), (673, -352), (493, -352), (493, -422), (-203, -422)])  # lines 0-5
sketch11.addGeometry(Part.Circle(App.Vector(581, -394, 0), App.Vector(0, 0, 1), 26), False)  # 6
sketch11.addConstraint([
    Sketcher.Constraint("Horizontal", 0),
    Sketcher.Constraint("Vertical", 1),
    Sketcher.Constraint("Horizontal", 2),
    Sketcher.Constraint("Vertical", 3),
    Sketcher.Constraint("Horizontal", 4),
    Sketcher.Constraint("Vertical", 5),
    Sketcher.Constraint("DistanceX", 0, 1, 0, 2, Q("876 mm")),
    Sketcher.Constraint("DistanceX", 2, 2, 2, 1, Q("180 mm")),
    Sketcher.Constraint("DistanceY", 1, 1, 1, 2, Q("410 mm")),
    Sketcher.Constraint("DistanceY", 3, 2, 3, 1, Q("70 mm")),
    Sketcher.Constraint("Diameter", 6, Q("51.452068 mm")),
    Sketcher.Constraint("DistanceY", 6, 3, -1, 1, Q("393.661082 mm")),
    Sketcher.Constraint("DistanceX", -1, 1, 0, 2, Q("673.017359 mm")),
    Sketcher.Constraint("DistanceY", 0, 2, 6, 3, Q("368.060421 mm")),
    Sketcher.Constraint("DistanceX", 4, 2, 6, 3, Q("784.082568 mm")),
])
sketch11.setExpression("Constraints[12]", "Params.sketch11_width")
sketch11.setExpression("Constraints[13]", "Params.sketch11_width2")
sketch11.setExpression("Constraints[14]", "Params.sketch11_height")
sketch11.setExpression("Constraints[15]", "Params.sketch11_height2")
pad11 = doc.addObject("PartDesign::Pad", "Pad010")
body11.addObject(pad11)
pad11.Profile = sketch11
pad11.setExpression("Length", "Params.pad11_length")
body12 = doc.addObject("PartDesign::Body", "Body011")

# Sketch on XY plane
sketch12 = doc.addObject("Sketcher::SketchObject", "Sketch011")
body12.addObject(sketch12)
sketch12.AttachmentSupport = (doc.getObject("XY_Plane011"), [""])
sketch12.MapMode = "FlatFace"
sketch12.AttachmentOffset = App.Placement(App.Vector(0, 0, -761.721503), App.Rotation())
sketch12.addGeometry([
    Part.LineSegment(App.Vector(-203, -318, 0), App.Vector(-203, -18, 0)),  # 0
    Part.LineSegment(App.Vector(-203, -18, 0), App.Vector(397, -18, 0)),  # 1
    Part.LineSegment(App.Vector(397, -18, 0), App.Vector(397, -278, 0)),  # 2
    Part.ArcOfCircle(Part.Circle(App.Vector(357, -278, 0), App.Vector(0, 0, 1), 40), math.radians(-90), math.radians(0)),  # 3
    Part.LineSegment(App.Vector(357, -318, 0), App.Vector(-203, -318, 0)),  # 4
], False)
sketch12.addConstraint([
    Sketcher.Constraint("Coincident", 0, 2, 1, 1),
    Sketcher.Constraint("Coincident", 1, 2, 2, 1),
    Sketcher.Constraint("Tangent", 2, 2, 3, 2),
    Sketcher.Constraint("Tangent", 3, 1, 4, 1),
    Sketcher.Constraint("Coincident", 4, 2, 0, 1),
    Sketcher.Constraint("Vertical", 0),
    Sketcher.Constraint("Horizontal", 1),
    Sketcher.Constraint("Vertical", 2),
    Sketcher.Constraint("Horizontal", 4),
    Sketcher.Constraint("Radius", 3, Q("39.999999 mm")),
    Sketcher.Constraint("DistanceX", 1, 1, 1, 2, Q("600 mm")),
    Sketcher.Constraint("DistanceY", 0, 1, 0, 2, Q("300 mm")),
    Sketcher.Constraint("DistanceY", 3, 3, -1, 1, Q("278.000001 mm")),
    Sketcher.Constraint("DistanceX", -1, 1, 3, 3, Q("357.01736 mm")),
])
sketch12.setExpression("Constraints[9]", "Params.sketch12_radius")
sketch12.setExpression("Constraints[10]", "Params.sketch12_width")
sketch12.setExpression("Constraints[11]", "Params.sketch12_height")
pad12 = doc.addObject("PartDesign::Pad", "Pad011")
body12.addObject(pad12)
pad12.Profile = sketch12
pad12.setExpression("Length", "Params.pad12_length")
pad12.Reversed = True
doc.recompute()

fillet2 = doc.addObject("PartDesign::Fillet", "Fillet001")
body12.addObject(fillet2)
fillet2.Base = (pad12, edges_at(pad12, [(77.017, -318, -761.722), (385.302, -306.284, -761.722), (397.017, -148, -761.722)]))
fillet2.setExpression("Radius", "Params.fillet2_radius")
body13 = doc.addObject("PartDesign::Body", "Body012")

# Sketch on XZ plane
sketch13 = doc.addObject("Sketcher::SketchObject", "Sketch012")
body13.addObject(sketch13)
sketch13.AttachmentSupport = (doc.getObject("XZ_Plane012"), [""])
sketch13.MapMode = "FlatFace"
sketch13.AttachmentOffset = App.Placement(App.Vector(0, 0, 36), App.Rotation())
add_polygon(sketch13, [(-1276, -348), (-1276, -518), (-876, -518), (-876, -348)])  # lines 0-3
sketch13.addConstraint([
    Sketcher.Constraint("Vertical", 0),
    Sketcher.Constraint("Horizontal", 1),
    Sketcher.Constraint("Vertical", 2),
    Sketcher.Constraint("Horizontal", 3),
    Sketcher.Constraint("DistanceX", 1, 1, 1, 2, Q("400 mm")),
    Sketcher.Constraint("DistanceY", 0, 2, 0, 1, Q("170 mm")),
    Sketcher.Constraint("DistanceY", 0, 2, -1, 1, Q("517.686272 mm")),
    Sketcher.Constraint("DistanceX", 0, 2, -1, 1, Q("1276.199204 mm")),
])
sketch13.setExpression("Constraints[8]", "Params.sketch13_width")
sketch13.setExpression("Constraints[9]", "Params.sketch13_height")
pad13 = doc.addObject("PartDesign::Pad", "Pad012")
body13.addObject(pad13)
pad13.Profile = sketch13
pad13.setExpression("Length", "Params.pad13_length")
body14 = doc.addObject("PartDesign::Body", "Body013")

# Sketch on XZ plane
sketch14 = doc.addObject("Sketcher::SketchObject", "Sketch013")
body14.addObject(sketch14)
sketch14.AttachmentSupport = (doc.getObject("XZ_Plane013"), [""])
sketch14.MapMode = "FlatFace"
sketch14.AttachmentOffset = App.Placement(App.Vector(0, 0, 36), App.Rotation())
add_polygon(sketch14, [(-1280, 0), (-1280, -190), (-880, -190), (-880, 0)])  # lines 0-3
sketch14.addConstraint([
    Sketcher.Constraint("Vertical", 0),
    Sketcher.Constraint("Horizontal", 1),
    Sketcher.Constraint("Vertical", 2),
    Sketcher.Constraint("Horizontal", 3),
    Sketcher.Constraint("PointOnObject", 2, 2, -1),
    Sketcher.Constraint("DistanceX", 1, 1, 1, 2, Q("400 mm")),
    Sketcher.Constraint("DistanceY", 0, 2, 0, 1, Q("190 mm")),
    Sketcher.Constraint("DistanceX", 0, 2, -1, 1, Q("1280.317497 mm")),
])
sketch14.setExpression("Constraints[9]", "Params.sketch14_width")
sketch14.setExpression("Constraints[10]", "Params.sketch14_height")
pad14 = doc.addObject("PartDesign::Pad", "Pad013")
body14.addObject(pad14)
pad14.Profile = sketch14
pad14.setExpression("Length", "Params.pad14_length")
body15 = doc.addObject("PartDesign::Body", "Body014")

# Sketch on XY plane
sketch15 = doc.addObject("Sketcher::SketchObject", "Sketch014")
body15.addObject(sketch15)
sketch15.AttachmentSupport = (doc.getObject("XY_Plane014"), [""])
sketch15.MapMode = "FlatFace"
sketch15.AttachmentOffset = App.Placement(App.Vector(0, 0, 18), App.Rotation())
add_polygon(sketch15, [(512, 559), (-468, 559), (-468, 409), (-204, 359), (248, 359), (512, 409)])  # lines 0-5
sketch15.addConstraint([
    Sketcher.Constraint("Horizontal", 0),
    Sketcher.Constraint("Vertical", 1),
    Sketcher.Constraint("Horizontal", 3),
    Sketcher.Constraint("Vertical", 5),
    Sketcher.Constraint("Horizontal", 1, 2, 4, 2),
    Sketcher.Constraint("Equal", 2, 4),
    Sketcher.Constraint("DistanceX", 0, 2, 0, 1, Q("980 mm")),
    Sketcher.Constraint("DistanceY", 1, 2, 1, 1, Q("150 mm")),
    Sketcher.Constraint("DistanceY", 2, 2, 1, 2, Q("50 mm")),
    Sketcher.Constraint("DistanceX", 3, 1, 3, 2, Q("452.864081 mm")),
    Sketcher.Constraint("DistanceY", -1, 1, 0, 2, Q("559.202158 mm")),
    Sketcher.Constraint("DistanceX", 0, 2, -1, 1, Q("468.017136 mm")),
])
sketch15.setExpression("Constraints[12]", "Params.sketch15_width")
sketch15.setExpression("Constraints[13]", "Params.sketch15_height")
pad15 = doc.addObject("PartDesign::Pad", "Pad014")
body15.addObject(pad15)
pad15.Profile = sketch15
pad15.setExpression("Length", "Params.pad15_length")
body16 = doc.addObject("PartDesign::Body", "Body015")
doc.recompute()

mirroring = doc.addObject("Part::Mirroring", "Mirroring")
mirroring.Source = body5
mirroring.Base = App.Vector(-490, 225, 115.5)
mirroring.Normal = App.Vector(1, 0, 0)
body16.BaseFeature = mirroring
doc.recompute()
mirroring.Visibility = False

doc.recompute()
